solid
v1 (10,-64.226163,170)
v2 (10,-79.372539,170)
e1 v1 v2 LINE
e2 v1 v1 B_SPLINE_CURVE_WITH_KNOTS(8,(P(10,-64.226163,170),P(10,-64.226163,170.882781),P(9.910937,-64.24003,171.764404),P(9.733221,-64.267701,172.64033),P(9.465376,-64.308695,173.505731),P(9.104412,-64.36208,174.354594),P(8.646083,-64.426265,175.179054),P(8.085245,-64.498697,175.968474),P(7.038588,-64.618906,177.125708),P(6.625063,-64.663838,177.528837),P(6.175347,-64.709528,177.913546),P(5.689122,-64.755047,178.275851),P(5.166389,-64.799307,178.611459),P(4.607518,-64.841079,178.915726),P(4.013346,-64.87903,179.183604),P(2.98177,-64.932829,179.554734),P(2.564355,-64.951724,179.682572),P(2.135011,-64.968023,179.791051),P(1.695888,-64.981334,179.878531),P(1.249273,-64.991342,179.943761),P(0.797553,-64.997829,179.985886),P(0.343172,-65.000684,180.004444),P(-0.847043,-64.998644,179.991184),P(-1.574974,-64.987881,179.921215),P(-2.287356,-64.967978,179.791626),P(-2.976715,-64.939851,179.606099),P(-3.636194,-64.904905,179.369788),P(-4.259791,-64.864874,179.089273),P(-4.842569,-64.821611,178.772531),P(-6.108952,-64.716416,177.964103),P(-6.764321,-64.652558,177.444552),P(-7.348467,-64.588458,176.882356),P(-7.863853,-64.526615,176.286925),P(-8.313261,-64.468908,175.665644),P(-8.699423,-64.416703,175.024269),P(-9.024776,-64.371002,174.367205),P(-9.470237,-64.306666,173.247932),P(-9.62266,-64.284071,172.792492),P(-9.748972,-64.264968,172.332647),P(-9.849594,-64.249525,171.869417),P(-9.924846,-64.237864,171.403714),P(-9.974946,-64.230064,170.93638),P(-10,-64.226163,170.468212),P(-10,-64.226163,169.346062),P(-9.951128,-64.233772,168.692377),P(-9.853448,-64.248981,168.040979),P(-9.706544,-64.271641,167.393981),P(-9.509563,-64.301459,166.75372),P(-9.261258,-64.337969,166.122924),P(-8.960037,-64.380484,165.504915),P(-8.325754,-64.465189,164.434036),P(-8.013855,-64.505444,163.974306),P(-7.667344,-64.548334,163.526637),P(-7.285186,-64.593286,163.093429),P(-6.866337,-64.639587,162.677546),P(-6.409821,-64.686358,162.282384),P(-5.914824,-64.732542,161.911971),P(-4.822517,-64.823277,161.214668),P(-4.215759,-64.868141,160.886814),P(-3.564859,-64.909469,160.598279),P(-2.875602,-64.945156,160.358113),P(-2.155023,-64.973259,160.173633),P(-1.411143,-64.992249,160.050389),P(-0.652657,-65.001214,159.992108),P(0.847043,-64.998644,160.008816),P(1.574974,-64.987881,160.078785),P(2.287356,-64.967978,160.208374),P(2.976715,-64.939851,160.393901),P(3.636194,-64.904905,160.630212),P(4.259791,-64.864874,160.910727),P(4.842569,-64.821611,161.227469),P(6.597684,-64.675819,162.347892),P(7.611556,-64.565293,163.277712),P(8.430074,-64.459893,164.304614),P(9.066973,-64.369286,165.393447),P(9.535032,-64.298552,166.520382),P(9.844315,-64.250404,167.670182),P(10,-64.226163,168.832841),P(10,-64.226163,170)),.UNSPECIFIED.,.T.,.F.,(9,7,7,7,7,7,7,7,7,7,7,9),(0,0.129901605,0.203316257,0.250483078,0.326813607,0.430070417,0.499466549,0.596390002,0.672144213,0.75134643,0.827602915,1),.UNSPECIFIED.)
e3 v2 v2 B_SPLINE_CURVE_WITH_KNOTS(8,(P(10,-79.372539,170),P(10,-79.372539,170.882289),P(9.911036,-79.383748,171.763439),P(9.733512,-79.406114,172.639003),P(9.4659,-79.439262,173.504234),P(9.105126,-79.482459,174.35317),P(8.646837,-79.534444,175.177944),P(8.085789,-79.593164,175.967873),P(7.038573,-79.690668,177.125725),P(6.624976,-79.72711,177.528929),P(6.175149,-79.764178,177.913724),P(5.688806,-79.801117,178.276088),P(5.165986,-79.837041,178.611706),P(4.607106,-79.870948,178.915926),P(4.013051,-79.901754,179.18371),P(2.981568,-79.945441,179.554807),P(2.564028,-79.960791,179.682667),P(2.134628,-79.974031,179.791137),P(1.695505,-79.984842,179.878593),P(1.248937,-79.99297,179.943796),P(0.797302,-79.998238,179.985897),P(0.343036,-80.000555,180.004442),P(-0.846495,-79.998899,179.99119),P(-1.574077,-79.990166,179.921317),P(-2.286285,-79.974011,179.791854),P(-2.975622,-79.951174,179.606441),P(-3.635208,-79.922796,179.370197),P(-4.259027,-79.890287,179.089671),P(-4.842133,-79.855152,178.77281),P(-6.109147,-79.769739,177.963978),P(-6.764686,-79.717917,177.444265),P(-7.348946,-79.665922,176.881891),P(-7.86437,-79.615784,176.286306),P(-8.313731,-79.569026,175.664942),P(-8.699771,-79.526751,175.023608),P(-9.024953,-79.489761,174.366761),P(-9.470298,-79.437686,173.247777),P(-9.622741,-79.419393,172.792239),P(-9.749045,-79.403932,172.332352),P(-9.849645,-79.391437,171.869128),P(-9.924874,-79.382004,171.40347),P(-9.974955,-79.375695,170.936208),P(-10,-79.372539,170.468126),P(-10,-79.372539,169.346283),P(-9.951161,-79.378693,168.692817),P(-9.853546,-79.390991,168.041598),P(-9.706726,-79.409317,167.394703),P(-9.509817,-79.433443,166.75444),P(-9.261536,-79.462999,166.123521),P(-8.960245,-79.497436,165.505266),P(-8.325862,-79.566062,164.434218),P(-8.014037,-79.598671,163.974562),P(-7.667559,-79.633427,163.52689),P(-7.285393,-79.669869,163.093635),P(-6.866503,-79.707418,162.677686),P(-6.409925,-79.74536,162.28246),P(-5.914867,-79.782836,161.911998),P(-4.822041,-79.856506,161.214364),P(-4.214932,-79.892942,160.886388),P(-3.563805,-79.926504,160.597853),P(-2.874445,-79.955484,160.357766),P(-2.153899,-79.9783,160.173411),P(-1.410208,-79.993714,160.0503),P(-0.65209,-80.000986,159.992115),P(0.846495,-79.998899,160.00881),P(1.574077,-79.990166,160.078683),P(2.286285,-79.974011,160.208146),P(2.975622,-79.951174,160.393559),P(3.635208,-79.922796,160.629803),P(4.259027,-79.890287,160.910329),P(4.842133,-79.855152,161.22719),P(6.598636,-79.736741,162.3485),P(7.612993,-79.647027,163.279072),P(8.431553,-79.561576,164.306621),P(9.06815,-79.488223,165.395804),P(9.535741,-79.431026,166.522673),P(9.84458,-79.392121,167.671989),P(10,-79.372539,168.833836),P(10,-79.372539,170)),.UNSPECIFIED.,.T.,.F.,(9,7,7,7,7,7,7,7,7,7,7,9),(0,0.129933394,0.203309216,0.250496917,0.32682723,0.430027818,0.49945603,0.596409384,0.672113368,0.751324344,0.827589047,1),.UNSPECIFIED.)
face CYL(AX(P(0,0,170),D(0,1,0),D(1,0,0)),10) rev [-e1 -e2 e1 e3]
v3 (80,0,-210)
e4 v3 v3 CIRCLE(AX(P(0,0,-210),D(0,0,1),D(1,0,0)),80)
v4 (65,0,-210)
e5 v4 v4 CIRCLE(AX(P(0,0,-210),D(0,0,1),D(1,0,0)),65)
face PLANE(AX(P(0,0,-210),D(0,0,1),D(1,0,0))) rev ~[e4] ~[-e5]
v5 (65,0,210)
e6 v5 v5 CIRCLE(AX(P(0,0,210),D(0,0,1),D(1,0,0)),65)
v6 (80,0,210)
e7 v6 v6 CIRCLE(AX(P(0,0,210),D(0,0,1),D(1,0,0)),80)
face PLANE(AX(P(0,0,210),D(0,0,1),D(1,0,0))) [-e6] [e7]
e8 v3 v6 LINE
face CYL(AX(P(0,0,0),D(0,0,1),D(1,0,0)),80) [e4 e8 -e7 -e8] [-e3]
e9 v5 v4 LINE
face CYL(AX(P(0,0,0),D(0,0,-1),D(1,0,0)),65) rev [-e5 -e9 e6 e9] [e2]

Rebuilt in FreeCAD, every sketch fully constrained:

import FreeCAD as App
import Part
import Sketcher

V = App.Vector

doc = App.newDocument("Part")
body = doc.addObject("PartDesign::Body", "Body")

# Sketch on XY plane
sketch1 = doc.addObject("Sketcher::SketchObject", "Sketch")
body.addObject(sketch1)
sketch1.AttachmentSupport = (doc.XY_Plane, [""])
sketch1.MapMode = "FlatFace"
sketch1.addGeometry(Part.Circle(V(0, 0, 0), V(0, 0, 1), 80), False)
sketch1.addGeometry(Part.Circle(V(0, 0, 0), V(0, 0, 1), 65), False)
sketch1.addConstraint(Sketcher.Constraint("Coincident", 0, 3, -1, 1))
sketch1.addConstraint(Sketcher.Constraint("Coincident", 1, 3, -1, 1))
sketch1.addConstraint(Sketcher.Constraint("Diameter", 0, 160.0))
sketch1.addConstraint(Sketcher.Constraint("Diameter", 1, 130.0))
pad1 = doc.addObject("PartDesign::Pad", "Pad")
body.addObject(pad1)
pad1.Profile = sketch1
pad1.Length = 420
pad1.Midplane = True

# Sketch on XZ plane
sketch2 = doc.addObject("Sketcher::SketchObject", "Sketch001")
body.addObject(sketch2)
sketch2.AttachmentSupport = (doc.XZ_Plane, [""])
sketch2.MapMode = "FlatFace"
sketch2.addGeometry(Part.Circle(V(0, 170, 0), V(0, 0, 1), 10), False)
sketch2.addConstraint(Sketcher.Constraint("PointOnObject", 0, 3, -2))
sketch2.addConstraint(Sketcher.Constraint("Diameter", 0, 20.0))
sketch2.addConstraint(Sketcher.Constraint("DistanceY", -1, 1, 0, 3, 170.0))
pocket1 = doc.addObject("PartDesign::Pocket", "Pocket")
body.addObject(pocket1)
pocket1.Profile = sketch2
pocket1.Type = "ThroughAll"
pocket1.Reversed = True

doc.recompute()
